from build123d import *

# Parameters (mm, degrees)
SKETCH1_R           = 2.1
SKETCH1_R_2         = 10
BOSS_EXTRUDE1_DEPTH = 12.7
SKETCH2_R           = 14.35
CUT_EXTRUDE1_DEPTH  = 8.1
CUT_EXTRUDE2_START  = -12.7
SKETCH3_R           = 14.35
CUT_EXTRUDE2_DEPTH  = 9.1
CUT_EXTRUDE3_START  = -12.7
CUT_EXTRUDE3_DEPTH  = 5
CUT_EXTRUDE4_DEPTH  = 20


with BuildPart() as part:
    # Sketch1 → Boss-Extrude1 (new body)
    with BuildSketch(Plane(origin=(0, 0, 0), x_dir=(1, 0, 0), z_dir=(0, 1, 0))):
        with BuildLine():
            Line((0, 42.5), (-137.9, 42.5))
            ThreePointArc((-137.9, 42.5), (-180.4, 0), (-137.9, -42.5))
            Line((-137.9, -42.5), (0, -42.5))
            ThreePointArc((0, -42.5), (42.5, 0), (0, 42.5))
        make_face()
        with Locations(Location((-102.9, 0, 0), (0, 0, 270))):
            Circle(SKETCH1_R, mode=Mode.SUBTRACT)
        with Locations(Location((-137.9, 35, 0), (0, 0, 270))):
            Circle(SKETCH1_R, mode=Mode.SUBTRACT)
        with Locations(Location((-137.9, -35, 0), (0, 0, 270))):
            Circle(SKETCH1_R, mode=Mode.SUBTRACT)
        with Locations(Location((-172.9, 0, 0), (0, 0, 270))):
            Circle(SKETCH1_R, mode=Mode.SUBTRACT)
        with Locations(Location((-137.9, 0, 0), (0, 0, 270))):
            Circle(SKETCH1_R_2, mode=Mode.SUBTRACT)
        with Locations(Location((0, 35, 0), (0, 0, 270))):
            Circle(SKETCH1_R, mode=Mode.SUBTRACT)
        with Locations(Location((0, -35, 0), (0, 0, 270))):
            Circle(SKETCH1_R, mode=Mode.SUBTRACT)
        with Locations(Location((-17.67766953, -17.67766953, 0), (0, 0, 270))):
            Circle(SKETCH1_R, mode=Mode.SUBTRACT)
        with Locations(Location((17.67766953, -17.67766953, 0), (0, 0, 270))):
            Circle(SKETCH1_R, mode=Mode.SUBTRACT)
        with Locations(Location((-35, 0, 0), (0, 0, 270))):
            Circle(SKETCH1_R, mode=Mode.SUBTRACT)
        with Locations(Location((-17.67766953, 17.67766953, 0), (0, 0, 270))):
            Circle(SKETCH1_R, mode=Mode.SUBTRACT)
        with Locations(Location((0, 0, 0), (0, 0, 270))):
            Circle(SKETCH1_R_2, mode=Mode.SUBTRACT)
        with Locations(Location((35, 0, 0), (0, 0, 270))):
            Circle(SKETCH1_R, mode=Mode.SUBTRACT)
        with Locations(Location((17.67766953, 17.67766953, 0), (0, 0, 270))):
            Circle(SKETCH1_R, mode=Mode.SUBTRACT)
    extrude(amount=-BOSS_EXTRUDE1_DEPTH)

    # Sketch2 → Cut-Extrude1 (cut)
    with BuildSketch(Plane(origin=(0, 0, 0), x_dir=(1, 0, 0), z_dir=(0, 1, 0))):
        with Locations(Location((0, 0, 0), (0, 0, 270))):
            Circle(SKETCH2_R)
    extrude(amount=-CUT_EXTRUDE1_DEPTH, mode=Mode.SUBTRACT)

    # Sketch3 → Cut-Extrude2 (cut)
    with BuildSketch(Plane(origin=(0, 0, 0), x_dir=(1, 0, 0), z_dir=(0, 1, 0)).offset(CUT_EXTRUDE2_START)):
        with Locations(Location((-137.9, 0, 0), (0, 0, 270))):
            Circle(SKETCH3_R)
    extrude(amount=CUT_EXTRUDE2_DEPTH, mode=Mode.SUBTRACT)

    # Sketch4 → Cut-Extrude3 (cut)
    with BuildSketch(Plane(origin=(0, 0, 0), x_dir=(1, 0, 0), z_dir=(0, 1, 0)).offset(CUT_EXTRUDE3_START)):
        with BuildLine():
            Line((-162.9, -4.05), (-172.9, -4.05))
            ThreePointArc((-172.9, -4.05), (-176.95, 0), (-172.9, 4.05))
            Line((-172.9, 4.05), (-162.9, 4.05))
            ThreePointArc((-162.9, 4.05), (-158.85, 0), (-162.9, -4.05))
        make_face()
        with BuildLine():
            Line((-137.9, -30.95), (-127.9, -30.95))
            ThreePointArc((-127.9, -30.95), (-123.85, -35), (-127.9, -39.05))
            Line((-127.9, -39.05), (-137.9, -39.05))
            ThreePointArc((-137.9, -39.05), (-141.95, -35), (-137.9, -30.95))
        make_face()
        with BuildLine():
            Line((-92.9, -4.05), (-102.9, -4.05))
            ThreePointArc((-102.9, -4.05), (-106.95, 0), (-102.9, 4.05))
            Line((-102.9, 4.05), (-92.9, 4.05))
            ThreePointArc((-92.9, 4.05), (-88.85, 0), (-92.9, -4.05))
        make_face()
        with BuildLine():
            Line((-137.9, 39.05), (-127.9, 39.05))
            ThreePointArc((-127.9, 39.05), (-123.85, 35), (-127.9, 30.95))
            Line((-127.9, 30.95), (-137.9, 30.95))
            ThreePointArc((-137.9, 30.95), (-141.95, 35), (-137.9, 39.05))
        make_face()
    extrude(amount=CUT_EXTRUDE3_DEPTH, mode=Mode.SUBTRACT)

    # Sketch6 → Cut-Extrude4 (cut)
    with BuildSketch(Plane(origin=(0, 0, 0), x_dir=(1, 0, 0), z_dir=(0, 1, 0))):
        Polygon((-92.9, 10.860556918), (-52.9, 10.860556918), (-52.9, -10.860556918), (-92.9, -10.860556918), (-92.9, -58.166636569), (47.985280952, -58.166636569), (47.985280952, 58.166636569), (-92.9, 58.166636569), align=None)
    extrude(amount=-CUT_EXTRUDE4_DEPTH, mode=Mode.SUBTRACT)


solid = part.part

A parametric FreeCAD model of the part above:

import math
import FreeCAD as App
import Part
import Sketcher
from FreeCAD import Vector
Q = App.Units.Quantity

doc = App.newDocument("Part")
body = doc.addObject("PartDesign::Body", "Body")

# Sketch on XZ plane
sketch1 = body.newObject("Sketcher::SketchObject", "Sketch")
sketch1.AttachmentSupport = (doc.getObject("XZ_Plane"), [""])
sketch1.MapMode = "FlatFace"
sketch1.addGeometry([
    Part.LineSegment(Vector(0, -42.5, 0), Vector(-137.9, -42.5, 0)),  # 0
    Part.ArcOfCircle(Part.Circle(Vector(-137.9, 0, 0), Vector(0, 0, 1), 42.5), math.radians(90), math.radians(270)),  # 1
    Part.LineSegment(Vector(-137.9, 42.5, 0), Vector(0, 42.5, 0)),  # 2
    Part.ArcOfCircle(Part.Circle(Vector(0, 0, 0), Vector(0, 0, 1), 42.5), math.radians(-90), math.radians(90)),  # 3
    Part.Circle(Vector(-137.9, 35, 0), Vector(0, 0, 1), 2.1),  # 4
    Part.Circle(Vector(0, 35, 0), Vector(0, 0, 1), 2.1),  # 5
    Part.Circle(Vector(-17.7, 17.7, 0), Vector(0, 0, 1), 2.1),  # 6
    Part.Circle(Vector(17.7, 17.7, 0), Vector(0, 0, 1), 2.1),  # 7
    Part.Circle(Vector(-172.9, 0, 0), Vector(0, 0, 1), 2.1),  # 8
    Part.Circle(Vector(-137.9, 0, 0), Vector(0, 0, 1), 10),  # 9
    Part.Circle(Vector(-102.9, 0, 0), Vector(0, 0, 1), 2.1),  # 10
    Part.Circle(Vector(-137.9, -35, 0), Vector(0, 0, 1), 2.1),  # 11
    Part.Circle(Vector(-35, 0, 0), Vector(0, 0, 1), 2.1),  # 12
    Part.Circle(Vector(-17.7, -17.7, 0), Vector(0, 0, 1), 2.1),  # 13
    Part.Circle(Vector(0, 0, 0), Vector(0, 0, 1), 10),  # 14
    Part.Circle(Vector(35, 0, 0), Vector(0, 0, 1), 2.1),  # 15
    Part.Circle(Vector(17.7, -17.7, 0), Vector(0, 0, 1), 2.1),  # 16
    Part.Circle(Vector(0, -35, 0), Vector(0, 0, 1), 2.1),  # 17
], False)
sketch1.addConstraint([
    Sketcher.Constraint("Tangent", 0, 2, 1, 2),
    Sketcher.Constraint("Tangent", 1, 1, 2, 1),
    Sketcher.Constraint("Tangent", 2, 2, 3, 2),
    Sketcher.Constraint("Tangent", 3, 1, 0, 1),
    Sketcher.Constraint("Horizontal", 0),
    Sketcher.Constraint("Horizontal", 2),
    Sketcher.Constraint("Coincident", 3, 3, -1, 1),
    Sketcher.Constraint("Coincident", 14, 3, -1, 1),
    Sketcher.Constraint("Coincident", 9, 3, 1, 3),
    Sketcher.Constraint("Equal", 4, 5),
    Sketcher.Constraint("Equal", 5, 6),
    Sketcher.Constraint("Equal", 6, 7),
    Sketcher.Constraint("Equal", 7, 8),
    Sketcher.Constraint("Equal", 8, 10),
    Sketcher.Constraint("Equal", 10, 11),
    Sketcher.Constraint("Equal", 11, 12),
    Sketcher.Constraint("Equal", 12, 13),
    Sketcher.Constraint("Equal", 9, 14),
    Sketcher.Constraint("Equal", 13, 15),
    Sketcher.Constraint("Equal", 15, 16),
    Sketcher.Constraint("Equal", 16, 17),
    Sketcher.Constraint("Symmetric", 7, 3, 13, 3, -1, 1),
    Sketcher.Constraint("Symmetric", 12, 3, 15, 3, -1, 1),
    Sketcher.Constraint("Symmetric", 6, 3, 16, 3, -1, 1),
    Sketcher.Constraint("Symmetric", 5, 3, 17, 3, -1, 1),
    Sketcher.Constraint("Symmetric", 6, 3, 7, 3, -2),
    Sketcher.Constraint("Symmetric", 4, 3, 11, 3, -1),
    Sketcher.Constraint("PointOnObject", 5, 3, -2),
    Sketcher.Constraint("PointOnObject", 8, 3, -1),
    Sketcher.Constraint("PointOnObject", 10, 3, -1),
    Sketcher.Constraint("PointOnObject", 12, 3, -1),
    Sketcher.Constraint("Horizontal", 4, 3, 5, 3),
    Sketcher.Constraint("Vertical", 1, 3, 4, 3),
    Sketcher.Constraint("Diameter", 9, Q("20 mm")),
    Sketcher.Constraint("Diameter", 4, Q("4.2 mm")),
    Sketcher.Constraint("Radius", 1, Q("42.5 mm")),
    Sketcher.Constraint("DistanceX", 0, 2, 0, 1, Q("137.9 mm")),
    Sketcher.Constraint("DistanceY", -1, 1, 4, 3, Q("35 mm")),
    Sketcher.Constraint("DistanceX", 12, 3, -1, 1, Q("35 mm")),
    Sketcher.Constraint("DistanceX", 8, 3, 1, 3, Q("35 mm")),
    Sketcher.Constraint("DistanceX", 1, 3, 10, 3, Q("35 mm")),
    Sketcher.Constraint("DistanceX", 6, 3, -1, 1, Q("17.67767 mm")),
    Sketcher.Constraint("DistanceY", -1, 1, 6, 3, Q("17.67767 mm")),
])
pad1 = body.newObject("PartDesign::Pad", "Pad")
pad1.Profile = sketch1
pad1.Length = 12.7

# Sketch on XZ plane
sketch2 = body.newObject("Sketcher::SketchObject", "Sketch001")
sketch2.AttachmentSupport = (doc.getObject("XZ_Plane"), [""])
sketch2.MapMode = "FlatFace"
sketch2.addGeometry(Part.Circle(Vector(0, 0, 0), Vector(0, 0, 1), 14), False)
sketch2.addConstraint([
    Sketcher.Constraint("Coincident", 0, 3, -1, 1),
    Sketcher.Constraint("Diameter", 0, Q("28.7 mm")),
])
pocket1 = body.newObject("PartDesign::Pocket", "Pocket")
pocket1.Profile = sketch2
pocket1.Length = 8.1
pocket1.Reversed = True

# Sketch on XZ plane
sketch3 = body.newObject("Sketcher::SketchObject", "Sketch002")
sketch3.AttachmentSupport = (doc.getObject("XZ_Plane"), [""])
sketch3.MapMode = "FlatFace"
sketch3.AttachmentOffset = App.Placement(Vector(0, 0, 12.7), App.Rotation())
sketch3.addGeometry(Part.Circle(Vector(-138, 0, 0), Vector(0, 0, 1), 14), False)
sketch3.addConstraint([
    Sketcher.Constraint("PointOnObject", 0, 3, -1),
    Sketcher.Constraint("Diameter", 0, Q("28.7 mm")),
    Sketcher.Constraint("DistanceX", 0, 3, -1, 1, Q("137.9 mm")),
])
pocket2 = body.newObject("PartDesign::Pocket", "Pocket001")
pocket2.Profile = sketch3
pocket2.Length = 9.1

# Sketch on XZ plane
sketch4 = body.newObject("Sketcher::SketchObject", "Sketch003")
sketch4.AttachmentSupport = (doc.getObject("XZ_Plane"), [""])
sketch4.MapMode = "FlatFace"
sketch4.AttachmentOffset = App.Placement(Vector(0, 0, 12.7), App.Rotation())
sketch4.addGeometry([
    Part.LineSegment(Vector(-172.9, 4, 0), Vector(-162.9, 4, 0)),  # 0
    Part.ArcOfCircle(Part.Circle(Vector(-162.9, 0, 0), Vector(0, 0, 1), 4), math.radians(-90), math.radians(90)),  # 1
    Part.LineSegment(Vector(-162.9, -4, 0), Vector(-172.9, -4, 0)),  # 2
    Part.ArcOfCircle(Part.Circle(Vector(-172.9, 0, 0), Vector(0, 0, 1), 4), math.radians(90), math.radians(270)),  # 3
    Part.LineSegment(Vector(-127.9, 30.9, 0), Vector(-137.9, 30.9, 0)),  # 4
    Part.ArcOfCircle(Part.Circle(Vector(-137.9, 35, 0), Vector(0, 0, 1), 4), math.radians(90), math.radians(270)),  # 5
    Part.LineSegment(Vector(-137.9, 39, 0), Vector(-127.9, 39, 0)),  # 6
    Part.ArcOfCircle(Part.Circle(Vector(-127.9, 35, 0), Vector(0, 0, 1), 4), math.radians(-90), math.radians(90)),  # 7
    Part.LineSegment(Vector(-102.9, 4, 0), Vector(-92.9, 4, 0)),  # 8
    Part.ArcOfCircle(Part.Circle(Vector(-92.9, 0, 0), Vector(0, 0, 1), 4), math.radians(-90), math.radians(90)),  # 9
    Part.LineSegment(Vector(-92.9, -4, 0), Vector(-102.9, -4, 0)),  # 10
    Part.ArcOfCircle(Part.Circle(Vector(-102.9, 0, 0), Vector(0, 0, 1), 4), math.radians(90), math.radians(270)),  # 11
    Part.LineSegment(Vector(-127.9, -39, 0), Vector(-137.9, -39, 0)),  # 12
    Part.ArcOfCircle(Part.Circle(Vector(-137.9, -35, 0), Vector(0, 0, 1), 4), math.radians(90), math.radians(270)),  # 13
    Part.LineSegment(Vector(-137.9, -30.9, 0), Vector(-127.9, -30.9, 0)),  # 14
    Part.ArcOfCircle(Part.Circle(Vector(-127.9, -35, 0), Vector(0, 0, 1), 4), math.radians(-90), math.radians(90)),  # 15
], False)
sketch4.addConstraint([
    Sketcher.Constraint("Tangent", 0, 2, 1, 2),
    Sketcher.Constraint("Tangent", 1, 1, 2, 1),
    Sketcher.Constraint("Tangent", 2, 2, 3, 2),
    Sketcher.Constraint("Tangent", 3, 1, 0, 1),
    Sketcher.Constraint("Tangent", 4, 2, 5, 2),
    Sketcher.Constraint("Tangent", 5, 1, 6, 1),
    Sketcher.Constraint("Tangent", 6, 2, 7, 2),
    Sketcher.Constraint("Tangent", 7, 1, 4, 1),
    Sketcher.Constraint("Tangent", 8, 2, 9, 2),
    Sketcher.Constraint("Tangent", 9, 1, 10, 1),
    Sketcher.Constraint("Tangent", 10, 2, 11, 2),
    Sketcher.Constraint("Tangent", 11, 1, 8, 1),
    Sketcher.Constraint("Tangent", 12, 2, 13, 2),
    Sketcher.Constraint("Tangent", 13, 1, 14, 1),
    Sketcher.Constraint("Tangent", 14, 2, 15, 2),
    Sketcher.Constraint("Tangent", 15, 1, 12, 1),
    Sketcher.Constraint("Horizontal", 0),
    Sketcher.Constraint("Horizontal", 2),
    Sketcher.Constraint("Horizontal", 4),
    Sketcher.Constraint("Horizontal", 6),
    Sketcher.Constraint("Horizontal", 8),
    Sketcher.Constraint("Horizontal", 10),
    Sketcher.Constraint("Horizontal", 12),
    Sketcher.Constraint("Horizontal", 14),
    Sketcher.Constraint("Equal", 3, 5),
    Sketcher.Constraint("Equal", 7, 9),
    Sketcher.Constraint("Equal", 11, 13),
    Sketcher.Constraint("Symmetric", 5, 3, 13, 3, -1),
    Sketcher.Constraint("PointOnObject", 1, 3, -1),
    Sketcher.Constraint("PointOnObject", 9, 3, -1),
    Sketcher.Constraint("Vertical", 7, 3, 15, 3),
    Sketcher.Constraint("Equal", 2, 4),
    Sketcher.Constraint("Equal", 6, 8),
    Sketcher.Constraint("DistanceX", 0, 1, 0, 2, Q("10 mm")),
    Sketcher.Constraint("Radius", 1, Q("4.05 mm")),
    Sketcher.Constraint("DistanceY", -1, 1, 5, 3, Q("35 mm")),
    Sketcher.Constraint("DistanceX", 1, 3, 5, 3, Q("25 mm")),
    Sketcher.Constraint("DistanceX", 7, 3, 9, 3, Q("35 mm")),
    Sketcher.Constraint("DistanceX", 1, 3, -1, 1, Q("162.9 mm")),
])
pocket3 = body.newObject("PartDesign::Pocket", "Pocket002")
pocket3.Profile = sketch4
pocket3.Length = 5

# Sketch on XZ plane
sketch5 = body.newObject("Sketcher::SketchObject", "Sketch004")
sketch5.AttachmentSupport = (doc.getObject("XZ_Plane"), [""])
sketch5.MapMode = "FlatFace"
sketch5.addGeometry([
    Part.LineSegment(Vector(-93, -11, 0), Vector(-53, -11, 0)),  # 0
    Part.LineSegment(Vector(-53, -11, 0), Vector(-53, 11, 0)),  # 1
    Part.LineSegment(Vector(-53, 11, 0), Vector(-93, 11, 0)),  # 2
    Part.LineSegment(Vector(-93, 11, 0), Vector(-93, 58, 0)),  # 3
    Part.LineSegment(Vector(-93, 58, 0), Vector(48, 58, 0)),  # 4
    Part.LineSegment(Vector(48, 58, 0), Vector(48, -58, 0)),  # 5
    Part.LineSegment(Vector(48, -58, 0), Vector(-93, -58, 0)),  # 6
    Part.LineSegment(Vector(-93, -58, 0), Vector(-93, -11, 0)),  # 7
], False)
sketch5.addConstraint([
    Sketcher.Constraint("Coincident", 0, 2, 1, 1),
    Sketcher.Constraint("Coincident", 1, 2, 2, 1),
    Sketcher.Constraint("Coincident", 2, 2, 3, 1),
    Sketcher.Constraint("Coincident", 3, 2, 4, 1),
    Sketcher.Constraint("Coincident", 4, 2, 5, 1),
    Sketcher.Constraint("Coincident", 5, 2, 6, 1),
    Sketcher.Constraint("Coincident", 6, 2, 7, 1),
    Sketcher.Constraint("Coincident", 7, 2, 0, 1),
    Sketcher.Constraint("Horizontal", 0),
    Sketcher.Constraint("Vertical", 1),
    Sketcher.Constraint("Horizontal", 2),
    Sketcher.Constraint("Vertical", 3),
    Sketcher.Constraint("Horizontal", 4),
    Sketcher.Constraint("Vertical", 5),
    Sketcher.Constraint("Horizontal", 6),
    Sketcher.Constraint("Vertical", 7),
    Sketcher.Constraint("Symmetric", 3, 2, 6, 2, -1),
    Sketcher.Constraint("Equal", 3, 7),
    Sketcher.Constraint("DistanceX", 0, 1, 0, 2, Q("40 mm")),
    Sketcher.Constraint("DistanceX", 0, 2, -1, 1, Q("52.9 mm")),
    Sketcher.Constraint("DistanceX", 4, 1, 4, 2, Q("140.885281 mm")),
    Sketcher.Constraint("DistanceY", 3, 1, 3, 2, Q("47.30608 mm")),
    Sketcher.Constraint("DistanceY", 1, 1, 1, 2, Q("21.721114 mm")),
])
pocket4 = body.newObject("PartDesign::Pocket", "Pocket003")
pocket4.Profile = sketch5
pocket4.Length = 20
pocket4.Reversed = True

doc.recompute()
